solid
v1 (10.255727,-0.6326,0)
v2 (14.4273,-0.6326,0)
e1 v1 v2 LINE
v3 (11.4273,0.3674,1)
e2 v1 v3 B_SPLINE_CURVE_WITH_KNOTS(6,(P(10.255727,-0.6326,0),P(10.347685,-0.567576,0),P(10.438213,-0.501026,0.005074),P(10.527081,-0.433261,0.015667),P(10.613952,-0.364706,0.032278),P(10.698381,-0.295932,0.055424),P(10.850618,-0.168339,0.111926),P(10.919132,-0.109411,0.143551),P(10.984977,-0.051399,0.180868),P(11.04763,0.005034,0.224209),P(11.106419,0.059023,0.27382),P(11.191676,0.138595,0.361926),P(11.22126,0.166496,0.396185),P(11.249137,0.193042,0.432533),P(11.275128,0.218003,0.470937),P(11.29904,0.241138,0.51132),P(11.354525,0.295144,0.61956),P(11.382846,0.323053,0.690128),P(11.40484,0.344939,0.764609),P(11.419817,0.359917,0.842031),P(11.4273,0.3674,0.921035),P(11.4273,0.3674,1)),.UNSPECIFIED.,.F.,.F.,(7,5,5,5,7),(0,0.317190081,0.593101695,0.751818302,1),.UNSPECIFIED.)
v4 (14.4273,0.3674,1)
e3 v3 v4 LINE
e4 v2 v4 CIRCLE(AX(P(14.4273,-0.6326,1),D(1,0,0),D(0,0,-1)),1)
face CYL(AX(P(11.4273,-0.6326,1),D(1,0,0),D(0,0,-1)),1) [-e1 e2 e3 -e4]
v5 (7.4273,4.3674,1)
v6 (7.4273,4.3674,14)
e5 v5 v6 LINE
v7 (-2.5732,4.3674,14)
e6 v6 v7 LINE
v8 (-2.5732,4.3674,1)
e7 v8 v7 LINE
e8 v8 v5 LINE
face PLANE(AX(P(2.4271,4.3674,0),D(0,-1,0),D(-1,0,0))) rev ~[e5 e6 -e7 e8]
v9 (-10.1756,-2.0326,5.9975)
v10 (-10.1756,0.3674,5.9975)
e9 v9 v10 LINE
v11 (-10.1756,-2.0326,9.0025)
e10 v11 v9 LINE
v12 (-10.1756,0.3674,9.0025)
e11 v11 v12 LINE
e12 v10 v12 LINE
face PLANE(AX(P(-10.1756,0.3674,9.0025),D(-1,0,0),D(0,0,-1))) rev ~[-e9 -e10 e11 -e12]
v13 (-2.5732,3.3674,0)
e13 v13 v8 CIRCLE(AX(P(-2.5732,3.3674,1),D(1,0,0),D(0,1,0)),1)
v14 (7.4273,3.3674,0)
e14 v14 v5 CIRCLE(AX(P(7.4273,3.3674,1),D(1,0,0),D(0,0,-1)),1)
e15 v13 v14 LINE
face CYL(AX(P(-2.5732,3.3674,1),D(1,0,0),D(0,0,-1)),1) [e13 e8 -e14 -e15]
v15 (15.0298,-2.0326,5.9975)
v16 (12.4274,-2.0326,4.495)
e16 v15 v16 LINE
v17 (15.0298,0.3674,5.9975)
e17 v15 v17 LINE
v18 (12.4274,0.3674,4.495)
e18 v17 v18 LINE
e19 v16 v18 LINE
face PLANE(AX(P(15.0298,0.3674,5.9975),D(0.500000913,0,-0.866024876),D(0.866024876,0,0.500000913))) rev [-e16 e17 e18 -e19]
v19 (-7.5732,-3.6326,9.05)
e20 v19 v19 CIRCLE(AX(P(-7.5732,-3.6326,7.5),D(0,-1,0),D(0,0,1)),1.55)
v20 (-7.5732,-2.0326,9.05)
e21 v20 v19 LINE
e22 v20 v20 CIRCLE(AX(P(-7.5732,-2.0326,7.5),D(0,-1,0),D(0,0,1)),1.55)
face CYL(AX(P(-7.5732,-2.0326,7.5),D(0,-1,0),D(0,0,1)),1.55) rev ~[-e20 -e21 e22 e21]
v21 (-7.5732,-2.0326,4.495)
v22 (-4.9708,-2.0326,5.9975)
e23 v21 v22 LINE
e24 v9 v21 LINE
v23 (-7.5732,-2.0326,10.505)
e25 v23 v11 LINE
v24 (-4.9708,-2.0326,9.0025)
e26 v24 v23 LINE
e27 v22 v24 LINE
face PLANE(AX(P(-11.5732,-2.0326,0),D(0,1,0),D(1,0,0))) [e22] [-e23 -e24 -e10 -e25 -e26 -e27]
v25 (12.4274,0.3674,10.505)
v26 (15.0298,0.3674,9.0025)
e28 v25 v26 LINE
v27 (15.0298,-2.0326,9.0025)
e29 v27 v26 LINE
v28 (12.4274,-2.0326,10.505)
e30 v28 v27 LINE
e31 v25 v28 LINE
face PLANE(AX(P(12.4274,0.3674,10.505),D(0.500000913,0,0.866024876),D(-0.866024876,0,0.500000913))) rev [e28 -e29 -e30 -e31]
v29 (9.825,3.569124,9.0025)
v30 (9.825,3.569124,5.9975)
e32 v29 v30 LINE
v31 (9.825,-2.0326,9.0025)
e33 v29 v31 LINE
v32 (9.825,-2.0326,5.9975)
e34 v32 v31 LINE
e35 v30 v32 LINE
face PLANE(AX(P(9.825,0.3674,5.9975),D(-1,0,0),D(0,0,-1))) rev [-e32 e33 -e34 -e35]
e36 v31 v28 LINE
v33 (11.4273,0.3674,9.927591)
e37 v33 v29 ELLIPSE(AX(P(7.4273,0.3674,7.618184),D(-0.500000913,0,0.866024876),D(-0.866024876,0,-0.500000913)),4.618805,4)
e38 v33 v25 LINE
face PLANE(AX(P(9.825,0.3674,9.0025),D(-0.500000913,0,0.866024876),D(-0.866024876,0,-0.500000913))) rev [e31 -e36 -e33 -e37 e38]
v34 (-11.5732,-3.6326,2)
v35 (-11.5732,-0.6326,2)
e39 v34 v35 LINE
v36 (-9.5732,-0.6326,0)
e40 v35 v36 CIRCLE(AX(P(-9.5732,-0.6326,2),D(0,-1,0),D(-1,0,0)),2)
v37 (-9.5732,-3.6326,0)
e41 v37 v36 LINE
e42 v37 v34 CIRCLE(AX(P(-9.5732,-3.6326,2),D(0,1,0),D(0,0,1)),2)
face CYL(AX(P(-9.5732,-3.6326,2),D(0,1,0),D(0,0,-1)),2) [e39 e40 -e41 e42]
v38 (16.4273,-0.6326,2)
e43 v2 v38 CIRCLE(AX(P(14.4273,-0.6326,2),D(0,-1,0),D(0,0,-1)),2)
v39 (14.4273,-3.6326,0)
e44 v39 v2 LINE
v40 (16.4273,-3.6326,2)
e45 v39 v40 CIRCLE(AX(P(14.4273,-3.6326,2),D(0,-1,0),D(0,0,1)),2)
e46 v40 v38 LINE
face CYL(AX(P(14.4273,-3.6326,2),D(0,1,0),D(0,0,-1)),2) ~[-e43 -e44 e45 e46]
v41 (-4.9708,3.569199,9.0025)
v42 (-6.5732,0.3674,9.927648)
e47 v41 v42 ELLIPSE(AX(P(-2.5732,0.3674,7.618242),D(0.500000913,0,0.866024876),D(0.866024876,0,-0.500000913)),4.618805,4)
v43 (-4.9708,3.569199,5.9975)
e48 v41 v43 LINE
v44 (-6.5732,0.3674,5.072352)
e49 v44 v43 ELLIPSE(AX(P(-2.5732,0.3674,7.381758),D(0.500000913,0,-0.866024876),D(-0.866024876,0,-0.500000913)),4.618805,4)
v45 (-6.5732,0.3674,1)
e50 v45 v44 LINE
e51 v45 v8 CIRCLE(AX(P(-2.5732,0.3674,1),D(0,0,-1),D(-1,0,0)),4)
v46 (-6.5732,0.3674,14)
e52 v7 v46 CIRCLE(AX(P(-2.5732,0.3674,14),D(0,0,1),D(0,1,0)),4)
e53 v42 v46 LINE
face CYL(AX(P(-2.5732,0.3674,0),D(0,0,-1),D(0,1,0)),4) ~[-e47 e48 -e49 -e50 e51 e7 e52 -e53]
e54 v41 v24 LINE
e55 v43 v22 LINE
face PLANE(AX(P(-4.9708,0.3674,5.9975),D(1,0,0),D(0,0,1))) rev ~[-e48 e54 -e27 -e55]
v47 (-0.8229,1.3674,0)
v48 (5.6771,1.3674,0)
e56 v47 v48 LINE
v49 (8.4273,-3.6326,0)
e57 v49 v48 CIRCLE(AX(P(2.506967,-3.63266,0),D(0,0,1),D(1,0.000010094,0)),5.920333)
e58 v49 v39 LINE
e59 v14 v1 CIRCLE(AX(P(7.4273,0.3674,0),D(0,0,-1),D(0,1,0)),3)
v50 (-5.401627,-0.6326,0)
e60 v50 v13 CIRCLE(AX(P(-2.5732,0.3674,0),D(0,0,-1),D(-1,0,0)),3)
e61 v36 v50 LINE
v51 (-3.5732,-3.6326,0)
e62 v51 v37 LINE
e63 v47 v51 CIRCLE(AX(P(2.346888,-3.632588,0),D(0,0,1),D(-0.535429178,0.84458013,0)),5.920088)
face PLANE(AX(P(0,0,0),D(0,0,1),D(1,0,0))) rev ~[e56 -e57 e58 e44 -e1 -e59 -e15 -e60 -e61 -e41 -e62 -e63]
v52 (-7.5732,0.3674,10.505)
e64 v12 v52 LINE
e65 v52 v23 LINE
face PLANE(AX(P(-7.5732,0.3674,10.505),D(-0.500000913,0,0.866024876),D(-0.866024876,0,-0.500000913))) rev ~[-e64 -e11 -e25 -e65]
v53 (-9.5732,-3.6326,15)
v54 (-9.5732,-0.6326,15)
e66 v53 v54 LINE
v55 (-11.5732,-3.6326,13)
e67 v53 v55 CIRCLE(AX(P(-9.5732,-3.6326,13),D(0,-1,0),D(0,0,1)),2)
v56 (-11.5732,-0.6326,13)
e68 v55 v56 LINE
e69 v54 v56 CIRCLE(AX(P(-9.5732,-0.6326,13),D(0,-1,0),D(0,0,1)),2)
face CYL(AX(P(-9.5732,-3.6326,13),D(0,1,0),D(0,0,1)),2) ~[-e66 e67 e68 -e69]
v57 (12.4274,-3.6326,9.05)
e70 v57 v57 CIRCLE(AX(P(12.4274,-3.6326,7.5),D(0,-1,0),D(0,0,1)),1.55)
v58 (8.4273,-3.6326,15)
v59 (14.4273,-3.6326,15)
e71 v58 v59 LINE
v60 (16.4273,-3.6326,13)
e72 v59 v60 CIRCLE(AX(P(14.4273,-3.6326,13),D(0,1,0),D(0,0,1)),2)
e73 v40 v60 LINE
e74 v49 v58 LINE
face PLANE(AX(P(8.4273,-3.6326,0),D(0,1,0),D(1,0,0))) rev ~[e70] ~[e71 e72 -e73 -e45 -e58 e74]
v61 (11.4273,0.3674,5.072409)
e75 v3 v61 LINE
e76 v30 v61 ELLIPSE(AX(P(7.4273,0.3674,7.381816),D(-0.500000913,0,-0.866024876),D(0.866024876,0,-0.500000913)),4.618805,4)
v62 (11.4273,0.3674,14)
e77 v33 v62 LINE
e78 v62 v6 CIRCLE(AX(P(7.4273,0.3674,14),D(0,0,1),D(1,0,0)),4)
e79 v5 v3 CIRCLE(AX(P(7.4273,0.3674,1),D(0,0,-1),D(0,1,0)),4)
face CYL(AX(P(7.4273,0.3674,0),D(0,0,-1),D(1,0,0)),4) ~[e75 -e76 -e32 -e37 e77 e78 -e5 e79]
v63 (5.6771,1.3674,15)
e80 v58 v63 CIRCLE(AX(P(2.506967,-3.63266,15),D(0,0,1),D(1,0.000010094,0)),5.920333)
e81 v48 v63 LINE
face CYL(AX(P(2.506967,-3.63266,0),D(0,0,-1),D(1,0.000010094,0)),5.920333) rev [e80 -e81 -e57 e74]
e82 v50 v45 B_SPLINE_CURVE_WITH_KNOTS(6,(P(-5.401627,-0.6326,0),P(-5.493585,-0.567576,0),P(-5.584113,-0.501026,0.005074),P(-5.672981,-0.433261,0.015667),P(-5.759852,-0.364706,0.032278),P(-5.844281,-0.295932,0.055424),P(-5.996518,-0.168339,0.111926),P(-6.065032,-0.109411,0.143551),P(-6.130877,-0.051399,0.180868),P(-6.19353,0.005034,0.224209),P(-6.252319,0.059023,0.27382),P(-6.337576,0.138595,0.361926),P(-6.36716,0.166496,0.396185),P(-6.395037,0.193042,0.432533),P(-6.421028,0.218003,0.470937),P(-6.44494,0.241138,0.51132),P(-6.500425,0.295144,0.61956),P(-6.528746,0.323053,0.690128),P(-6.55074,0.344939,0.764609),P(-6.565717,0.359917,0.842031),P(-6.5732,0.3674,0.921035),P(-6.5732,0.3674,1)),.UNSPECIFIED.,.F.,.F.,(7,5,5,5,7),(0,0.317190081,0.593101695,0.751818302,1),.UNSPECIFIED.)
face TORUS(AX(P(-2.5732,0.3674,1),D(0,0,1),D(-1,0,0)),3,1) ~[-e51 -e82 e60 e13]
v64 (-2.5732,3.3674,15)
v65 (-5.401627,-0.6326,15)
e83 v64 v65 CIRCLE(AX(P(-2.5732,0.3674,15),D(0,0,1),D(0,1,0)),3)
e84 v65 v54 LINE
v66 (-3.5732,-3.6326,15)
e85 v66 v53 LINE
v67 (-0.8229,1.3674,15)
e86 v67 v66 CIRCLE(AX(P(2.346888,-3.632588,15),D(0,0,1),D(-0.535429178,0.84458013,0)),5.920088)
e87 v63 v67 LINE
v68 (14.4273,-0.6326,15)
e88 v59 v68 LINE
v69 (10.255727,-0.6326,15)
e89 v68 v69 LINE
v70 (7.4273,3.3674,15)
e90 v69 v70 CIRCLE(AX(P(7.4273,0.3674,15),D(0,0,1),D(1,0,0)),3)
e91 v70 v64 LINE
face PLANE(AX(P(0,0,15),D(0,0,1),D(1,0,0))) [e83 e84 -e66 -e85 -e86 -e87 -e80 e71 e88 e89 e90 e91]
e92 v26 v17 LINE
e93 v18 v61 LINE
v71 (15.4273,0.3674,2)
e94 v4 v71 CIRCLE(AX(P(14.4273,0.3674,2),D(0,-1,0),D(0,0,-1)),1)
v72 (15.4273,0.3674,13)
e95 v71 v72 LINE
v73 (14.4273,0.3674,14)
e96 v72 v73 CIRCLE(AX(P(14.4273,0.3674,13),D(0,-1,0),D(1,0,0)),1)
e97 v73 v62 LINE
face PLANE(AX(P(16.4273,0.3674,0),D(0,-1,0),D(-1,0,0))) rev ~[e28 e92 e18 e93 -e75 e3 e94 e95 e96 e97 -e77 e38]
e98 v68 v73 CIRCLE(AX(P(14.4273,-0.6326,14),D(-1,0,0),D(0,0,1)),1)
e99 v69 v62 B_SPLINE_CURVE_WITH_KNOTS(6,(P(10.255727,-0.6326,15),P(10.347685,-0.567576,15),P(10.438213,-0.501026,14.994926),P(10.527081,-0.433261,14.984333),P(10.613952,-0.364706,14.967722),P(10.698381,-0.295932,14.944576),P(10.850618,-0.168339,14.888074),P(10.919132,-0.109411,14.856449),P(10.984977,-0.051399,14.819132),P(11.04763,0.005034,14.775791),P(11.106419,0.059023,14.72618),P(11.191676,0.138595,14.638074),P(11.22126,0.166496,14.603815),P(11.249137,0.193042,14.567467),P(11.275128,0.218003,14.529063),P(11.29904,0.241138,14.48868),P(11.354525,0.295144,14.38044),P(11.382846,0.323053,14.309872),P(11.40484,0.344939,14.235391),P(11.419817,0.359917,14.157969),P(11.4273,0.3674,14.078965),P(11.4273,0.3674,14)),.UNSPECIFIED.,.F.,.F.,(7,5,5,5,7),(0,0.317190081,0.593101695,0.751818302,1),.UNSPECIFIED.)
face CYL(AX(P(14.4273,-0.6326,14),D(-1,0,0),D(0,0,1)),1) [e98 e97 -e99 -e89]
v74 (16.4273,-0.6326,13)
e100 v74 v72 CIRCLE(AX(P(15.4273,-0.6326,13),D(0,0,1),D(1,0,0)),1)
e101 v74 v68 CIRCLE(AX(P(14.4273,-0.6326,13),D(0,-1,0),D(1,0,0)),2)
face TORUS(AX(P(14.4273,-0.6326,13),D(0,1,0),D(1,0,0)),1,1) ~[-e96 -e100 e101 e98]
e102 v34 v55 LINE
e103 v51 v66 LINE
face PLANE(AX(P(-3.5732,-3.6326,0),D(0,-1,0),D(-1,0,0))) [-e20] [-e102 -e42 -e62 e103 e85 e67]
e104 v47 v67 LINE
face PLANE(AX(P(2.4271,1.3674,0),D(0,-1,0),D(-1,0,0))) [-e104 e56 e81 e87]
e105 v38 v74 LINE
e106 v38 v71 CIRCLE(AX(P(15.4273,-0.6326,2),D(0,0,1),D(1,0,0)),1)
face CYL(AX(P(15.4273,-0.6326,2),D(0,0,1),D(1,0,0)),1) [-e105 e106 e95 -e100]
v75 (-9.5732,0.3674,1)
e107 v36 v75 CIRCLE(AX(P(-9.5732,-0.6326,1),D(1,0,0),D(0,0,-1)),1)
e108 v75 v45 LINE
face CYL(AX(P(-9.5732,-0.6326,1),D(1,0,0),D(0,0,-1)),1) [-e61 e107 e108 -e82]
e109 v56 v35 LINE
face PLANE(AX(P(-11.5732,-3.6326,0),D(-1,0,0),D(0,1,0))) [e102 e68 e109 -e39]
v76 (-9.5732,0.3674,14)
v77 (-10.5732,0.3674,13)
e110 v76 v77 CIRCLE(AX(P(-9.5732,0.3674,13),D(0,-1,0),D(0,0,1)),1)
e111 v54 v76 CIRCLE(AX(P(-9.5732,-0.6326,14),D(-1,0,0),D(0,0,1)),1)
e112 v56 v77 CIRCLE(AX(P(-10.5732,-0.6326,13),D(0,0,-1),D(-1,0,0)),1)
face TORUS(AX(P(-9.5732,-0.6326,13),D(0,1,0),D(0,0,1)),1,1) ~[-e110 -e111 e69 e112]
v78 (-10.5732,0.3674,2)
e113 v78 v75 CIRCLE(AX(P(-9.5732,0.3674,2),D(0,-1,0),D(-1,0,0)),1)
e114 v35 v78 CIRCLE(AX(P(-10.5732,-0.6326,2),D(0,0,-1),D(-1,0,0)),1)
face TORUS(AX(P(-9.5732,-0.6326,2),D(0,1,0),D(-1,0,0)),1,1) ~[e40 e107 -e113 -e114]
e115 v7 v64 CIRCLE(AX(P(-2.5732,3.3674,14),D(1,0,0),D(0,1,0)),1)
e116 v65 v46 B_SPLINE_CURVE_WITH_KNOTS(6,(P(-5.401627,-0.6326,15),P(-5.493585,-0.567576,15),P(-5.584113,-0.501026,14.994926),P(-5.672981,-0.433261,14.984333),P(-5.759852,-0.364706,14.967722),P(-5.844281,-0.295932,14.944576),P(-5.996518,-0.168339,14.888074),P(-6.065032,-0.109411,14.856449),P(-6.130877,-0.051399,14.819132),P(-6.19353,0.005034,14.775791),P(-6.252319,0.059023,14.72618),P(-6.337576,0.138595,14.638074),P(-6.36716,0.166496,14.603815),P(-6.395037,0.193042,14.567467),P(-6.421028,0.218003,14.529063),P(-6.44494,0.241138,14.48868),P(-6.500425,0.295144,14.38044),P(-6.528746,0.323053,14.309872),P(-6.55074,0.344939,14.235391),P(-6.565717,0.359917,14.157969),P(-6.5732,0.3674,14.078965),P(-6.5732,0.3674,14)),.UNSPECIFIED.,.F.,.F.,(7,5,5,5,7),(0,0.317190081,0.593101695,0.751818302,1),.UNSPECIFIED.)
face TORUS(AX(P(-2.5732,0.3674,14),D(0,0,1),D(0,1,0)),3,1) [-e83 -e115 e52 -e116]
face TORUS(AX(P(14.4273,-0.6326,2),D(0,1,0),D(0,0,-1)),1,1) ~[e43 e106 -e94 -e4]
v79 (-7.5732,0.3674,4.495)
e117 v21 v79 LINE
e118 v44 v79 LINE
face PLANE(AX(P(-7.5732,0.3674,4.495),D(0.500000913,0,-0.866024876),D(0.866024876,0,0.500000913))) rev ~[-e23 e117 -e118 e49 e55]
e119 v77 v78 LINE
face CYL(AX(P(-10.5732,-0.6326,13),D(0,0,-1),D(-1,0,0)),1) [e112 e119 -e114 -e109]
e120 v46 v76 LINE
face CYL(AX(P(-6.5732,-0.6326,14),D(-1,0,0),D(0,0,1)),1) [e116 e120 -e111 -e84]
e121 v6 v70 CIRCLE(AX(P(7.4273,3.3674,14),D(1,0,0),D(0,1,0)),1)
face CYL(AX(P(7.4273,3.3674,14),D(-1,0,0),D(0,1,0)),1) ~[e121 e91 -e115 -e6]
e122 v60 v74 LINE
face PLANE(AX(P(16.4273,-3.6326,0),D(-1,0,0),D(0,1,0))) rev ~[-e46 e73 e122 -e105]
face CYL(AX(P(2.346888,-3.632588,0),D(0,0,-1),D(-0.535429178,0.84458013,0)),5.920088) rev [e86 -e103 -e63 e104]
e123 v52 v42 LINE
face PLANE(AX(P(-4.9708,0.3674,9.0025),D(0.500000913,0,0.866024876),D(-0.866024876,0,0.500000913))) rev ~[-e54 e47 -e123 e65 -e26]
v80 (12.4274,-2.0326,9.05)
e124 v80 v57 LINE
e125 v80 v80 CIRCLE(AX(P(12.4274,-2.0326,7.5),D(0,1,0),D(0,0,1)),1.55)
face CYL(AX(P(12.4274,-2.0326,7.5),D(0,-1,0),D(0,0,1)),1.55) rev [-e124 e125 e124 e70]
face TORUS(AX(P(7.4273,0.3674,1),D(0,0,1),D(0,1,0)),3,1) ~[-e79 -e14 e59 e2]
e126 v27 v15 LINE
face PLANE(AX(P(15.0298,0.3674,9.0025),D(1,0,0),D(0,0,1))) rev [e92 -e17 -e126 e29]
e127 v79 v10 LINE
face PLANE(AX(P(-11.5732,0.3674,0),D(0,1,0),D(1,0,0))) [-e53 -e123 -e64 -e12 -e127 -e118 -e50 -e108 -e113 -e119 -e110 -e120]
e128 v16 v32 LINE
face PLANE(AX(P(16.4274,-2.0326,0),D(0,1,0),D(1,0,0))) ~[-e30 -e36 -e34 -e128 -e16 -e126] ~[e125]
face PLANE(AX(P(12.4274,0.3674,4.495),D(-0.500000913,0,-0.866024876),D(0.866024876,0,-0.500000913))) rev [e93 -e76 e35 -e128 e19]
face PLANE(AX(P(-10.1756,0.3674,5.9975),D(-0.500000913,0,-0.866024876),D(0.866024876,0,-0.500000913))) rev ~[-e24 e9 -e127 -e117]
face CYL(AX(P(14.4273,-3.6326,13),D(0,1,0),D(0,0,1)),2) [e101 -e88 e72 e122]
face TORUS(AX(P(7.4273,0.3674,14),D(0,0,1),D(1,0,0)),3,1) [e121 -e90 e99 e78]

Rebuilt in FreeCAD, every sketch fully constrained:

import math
import FreeCAD as App
import Part
import Sketcher

V = App.Vector
Q = App.Units.Quantity


def edges_at(feature, points):
    """Names of the edges that pass closest to the given points."""
    edges = feature.Shape.Edges
    near = lambda p: min(range(len(edges)), key=lambda i: edges[i].distToShape(Part.Vertex(*p))[0])
    return sorted({f"Edge{near(p) + 1}" for p in points})


def add_polygon(sketch, points):
    """Adds a closed chain of lines whose ends are joined by coincident constraints."""
    first, n = sketch.GeometryCount, len(points)
    for a, b in zip(points, points[1:] + points[:1]):
        sketch.addGeometry(Part.LineSegment(App.Vector(*a, 0), App.Vector(*b, 0)), False)
    for i in range(n):
        sketch.addConstraint(Sketcher.Constraint("Coincident", first + i, 2, first + (i + 1) % n, 1))

doc = App.newDocument("Part")
body = doc.addObject("PartDesign::Body", "Body")

# Sketch on XY plane
sketch1 = body.newObject("Sketcher::SketchObject", "Sketch")
sketch1.AttachmentSupport = (doc.getObject("XY_Plane"), [""])
sketch1.MapMode = "FlatFace"
sketch1.addGeometry(Part.LineSegment(V(-0.8, 1.4, 0), V(5.7, 1.4, 0)), False)
sketch1.addGeometry(Part.ArcOfCircle(Part.Circle(V(2.5, -3.6, 0), V(0, 0, 1), 5.9), math.radians(0), math.radians(58)), False)
sketch1.addGeometry(Part.LineSegment(V(8.4, -3.6, 0), V(16.4, -3.6, 0)), False)
sketch1.addGeometry(Part.LineSegment(V(16.4, -3.6, 0), V(16.4, 0.4, 0)), False)
sketch1.addGeometry(Part.LineSegment(V(16.4, 0.4, 0), V(11.4, 0.4, 0)), False)
sketch1.addGeometry(Part.ArcOfCircle(Part.Circle(V(7.4, 0.4, 0), V(0, 0, 1), 4), math.radians(0), math.radians(90)), False)
sketch1.addGeometry(Part.LineSegment(V(7.4, 4.4, 0), V(-2.6, 4.4, 0)), False)
sketch1.addGeometry(Part.ArcOfCircle(Part.Circle(V(-2.6, 0.4, 0), V(0, 0, 1), 4), math.radians(90), math.radians(180)), False)
sketch1.addGeometry(Part.LineSegment(V(-6.6, 0.4, 0), V(-11.6, 0.4, 0)), False)
sketch1.addGeometry(Part.LineSegment(V(-11.6, 0.4, 0), V(-11.6, -3.6, 0)), False)
sketch1.addGeometry(Part.LineSegment(V(-11.6, -3.6, 0), V(-3.6, -3.6, 0)), False)
sketch1.addGeometry(Part.ArcOfCircle(Part.Circle(V(2.3, -3.6, 0), V(0, 0, 1), 5.9), math.radians(122), math.radians(180)), False)
sketch1.addConstraint(Sketcher.Constraint("Coincident", 0, 2, 1, 2))
sketch1.addConstraint(Sketcher.Constraint("Coincident", 1, 1, 2, 1))
sketch1.addConstraint(Sketcher.Constraint("Coincident", 2, 2, 3, 1))
sketch1.addConstraint(Sketcher.Constraint("Coincident", 3, 2, 4, 1))
sketch1.addConstraint(Sketcher.Constraint("Coincident", 4, 2, 5, 1))
sketch1.addConstraint(Sketcher.Constraint("Tangent", 5, 2, 6, 1))
sketch1.addConstraint(Sketcher.Constraint("Tangent", 6, 2, 7, 1))
sketch1.addConstraint(Sketcher.Constraint("Coincident", 7, 2, 8, 1))
sketch1.addConstraint(Sketcher.Constraint("Coincident", 8, 2, 9, 1))
sketch1.addConstraint(Sketcher.Constraint("Coincident", 9, 2, 10, 1))
sketch1.addConstraint(Sketcher.Constraint("Coincident", 10, 2, 11, 2))
sketch1.addConstraint(Sketcher.Constraint("Coincident", 11, 1, 0, 1))
sketch1.addConstraint(Sketcher.Constraint("Horizontal", 0))
sketch1.addConstraint(Sketcher.Constraint("Horizontal", 2))
sketch1.addConstraint(Sketcher.Constraint("Vertical", 3))
sketch1.addConstraint(Sketcher.Constraint("Horizontal", 4))
sketch1.addConstraint(Sketcher.Constraint("Horizontal", 6))
sketch1.addConstraint(Sketcher.Constraint("Horizontal", 8))
sketch1.addConstraint(Sketcher.Constraint("Vertical", 9))
sketch1.addConstraint(Sketcher.Constraint("Horizontal", 10))
sketch1.addConstraint(Sketcher.Constraint("Equal", 5, 7))
sketch1.addConstraint(Sketcher.Constraint("Equal", 1, 11))
sketch1.addConstraint(Sketcher.Constraint("Horizontal", 1, 3, 11, 3))
sketch1.addConstraint(Sketcher.Constraint("Horizontal", 11, 3, 1, 1))
sketch1.addConstraint(Sketcher.Constraint("Horizontal", 7, 3, 3, 2))
sketch1.addConstraint(Sketcher.Constraint("Horizontal", 4, 2, 7, 2))
sketch1.addConstraint(Sketcher.Constraint("Horizontal", 2, 2, 9, 2))
sketch1.addConstraint(Sketcher.Constraint("Equal", 4, 8))
sketch1.addConstraint(Sketcher.Constraint("Equal", 2, 10))
sketch1.addConstraint(Sketcher.Constraint("Radius", 5, 4.0))
sketch1.addConstraint(Sketcher.Constraint("DistanceX", 2, 1, 2, 2, 8.0))
sketch1.addConstraint(Sketcher.Constraint("DistanceX", 4, 2, 4, 1, 5.0))
sketch1.addConstraint(Sketcher.Constraint("DistanceY", 3, 1, 3, 2, 4.0))
sketch1.addConstraint(Sketcher.Constraint("DistanceY", 1, 3, 0, 2, 5.0))
sketch1.addConstraint(Sketcher.Constraint("Radius", 1, 5.92))
sketch1.addConstraint(Sketcher.Constraint("DistanceX", 0, 1, 0, 2, 6.5))
sketch1.addConstraint(Sketcher.Constraint("DistanceX", -1, 1, 11, 3, 2.347))
sketch1.addConstraint(Sketcher.Constraint("DistanceY", 1, 3, -1, 1, 3.6326))
pad1 = body.newObject("PartDesign::Pad", "Pad")
pad1.Profile = sketch1
pad1.Length = 15

# Sketch on XZ plane
sketch2 = body.newObject("Sketcher::SketchObject", "Sketch001")
sketch2.AttachmentSupport = (doc.getObject("XZ_Plane"), [""])
sketch2.MapMode = "FlatFace"
sketch2.AttachmentOffset = App.Placement(V(0, 0, -0.3674), App.Rotation())
add_polygon(sketch2, [(-5, 6), (-7.6, 4.5), (-10.2, 6), (-10.2, 9), (-7.6, 10.5), (-5, 9)])  # lines 0-5
sketch2.addConstraint(Sketcher.Constraint("Vertical", 2))
sketch2.addConstraint(Sketcher.Constraint("Vertical", 5))
sketch2.addConstraint(Sketcher.Constraint("Parallel", 0, 3))
sketch2.addConstraint(Sketcher.Constraint("Parallel", 1, 4))
sketch2.addConstraint(Sketcher.Constraint("Horizontal", 2, 2, 4, 2))
sketch2.addConstraint(Sketcher.Constraint("Horizontal", 1, 2, 5, 2))
sketch2.addConstraint(Sketcher.Constraint("Vertical", 0, 2, 3, 2))
sketch2.addConstraint(Sketcher.Constraint("Angle", 0, Q("-150 deg")))
sketch2.addConstraint(Sketcher.Constraint("DistanceY", 0, 2, 3, 2, 6.01))
sketch2.addConstraint(Sketcher.Constraint("DistanceY", 2, 1, 2, 2, 3.005))
sketch2.addConstraint(Sketcher.Constraint("DistanceY", -1, 1, 0, 2, 4.495))
sketch2.addConstraint(Sketcher.Constraint("DistanceX", 0, 2, -1, 1, 7.5732))
pocket1 = body.newObject("PartDesign::Pocket", "Pocket")
pocket1.Profile = sketch2
pocket1.Type = "TwoLengths"
pocket1.Length = 8
pocket1.Length2 = 2.4

# Sketch on XZ plane
sketch3 = body.newObject("Sketcher::SketchObject", "Sketch002")
sketch3.AttachmentSupport = (doc.getObject("XZ_Plane"), [""])
sketch3.MapMode = "FlatFace"
sketch3.AttachmentOffset = App.Placement(V(0, 0, 2.0326), App.Rotation())
sketch3.addGeometry(Part.Circle(V(-7.6, 7.5, 0), V(0, 0, 1), 1.6), False)
sketch3.addConstraint(Sketcher.Constraint("Diameter", 0, 3.1))
sketch3.addConstraint(Sketcher.Constraint("DistanceY", -1, 1, 0, 3, 7.5))
sketch3.addConstraint(Sketcher.Constraint("DistanceX", 0, 3, -1, 1, 7.5732))
doc.recompute()
hole = body.newObject("PartDesign::Hole", "Hole")
hole.Profile = sketch3
hole.ThreadType = "None"
hole.Diameter = 3.1
hole.DepthType = "ThroughAll"
hole.Reversed = True
doc.recompute()

datumplane = body.newObject("PartDesign::Plane", "DatumPlane")
datumplane.AttachmentSupport = (doc.getObject("YZ_Plane"), [""])
datumplane.MapMode = "FlatFace"
datumplane.AttachmentOffset = App.Placement(V(0, 0, 2.4271), App.Rotation())
mirrored = body.newObject("PartDesign::Mirrored", "Mirrored")
mirrored.Originals = [pocket1, hole]
mirrored.MirrorPlane = (datumplane, [""])
body.Tip = mirrored
doc.recompute()

fillet = body.newObject("PartDesign::Fillet", "Fillet")
fillet.Base = (mirrored, edges_at(mirrored, [
    (16.427, -1.633, 0),
    (16.427, -1.633, 15),
    (-11.573, -1.633, 15),
    (-11.573, -1.633, 0),
]))
fillet.Radius = 2
doc.recompute()

fillet2 = body.newObject("PartDesign::Fillet", "Fillet001")
fillet2.Base = (fillet, edges_at(fillet, [
    (15.841, 0.367, 0.586),
    (16.427, 0.367, 7.5),
    (15.841, 0.367, 14.414),
    (12.927, 0.367, 15),
    (12.927, 0.367, 0),
    (2.427, 4.367, 0),
    (-5.402, 3.196, 0),
    (10.256, 3.196, 0),
    (-8.073, 0.367, 0),
    (-11.573, 0.367, 7.5),
    (-10.987, 0.367, 14.414),
    (-8.073, 0.367, 15),
    (-10.987, 0.367, 0.586),
    (2.427, 4.367, 15),
    (10.256, 3.196, 15),
    (-5.402, 3.196, 15),
]))
fillet2.Radius = 1

doc.recompute()
